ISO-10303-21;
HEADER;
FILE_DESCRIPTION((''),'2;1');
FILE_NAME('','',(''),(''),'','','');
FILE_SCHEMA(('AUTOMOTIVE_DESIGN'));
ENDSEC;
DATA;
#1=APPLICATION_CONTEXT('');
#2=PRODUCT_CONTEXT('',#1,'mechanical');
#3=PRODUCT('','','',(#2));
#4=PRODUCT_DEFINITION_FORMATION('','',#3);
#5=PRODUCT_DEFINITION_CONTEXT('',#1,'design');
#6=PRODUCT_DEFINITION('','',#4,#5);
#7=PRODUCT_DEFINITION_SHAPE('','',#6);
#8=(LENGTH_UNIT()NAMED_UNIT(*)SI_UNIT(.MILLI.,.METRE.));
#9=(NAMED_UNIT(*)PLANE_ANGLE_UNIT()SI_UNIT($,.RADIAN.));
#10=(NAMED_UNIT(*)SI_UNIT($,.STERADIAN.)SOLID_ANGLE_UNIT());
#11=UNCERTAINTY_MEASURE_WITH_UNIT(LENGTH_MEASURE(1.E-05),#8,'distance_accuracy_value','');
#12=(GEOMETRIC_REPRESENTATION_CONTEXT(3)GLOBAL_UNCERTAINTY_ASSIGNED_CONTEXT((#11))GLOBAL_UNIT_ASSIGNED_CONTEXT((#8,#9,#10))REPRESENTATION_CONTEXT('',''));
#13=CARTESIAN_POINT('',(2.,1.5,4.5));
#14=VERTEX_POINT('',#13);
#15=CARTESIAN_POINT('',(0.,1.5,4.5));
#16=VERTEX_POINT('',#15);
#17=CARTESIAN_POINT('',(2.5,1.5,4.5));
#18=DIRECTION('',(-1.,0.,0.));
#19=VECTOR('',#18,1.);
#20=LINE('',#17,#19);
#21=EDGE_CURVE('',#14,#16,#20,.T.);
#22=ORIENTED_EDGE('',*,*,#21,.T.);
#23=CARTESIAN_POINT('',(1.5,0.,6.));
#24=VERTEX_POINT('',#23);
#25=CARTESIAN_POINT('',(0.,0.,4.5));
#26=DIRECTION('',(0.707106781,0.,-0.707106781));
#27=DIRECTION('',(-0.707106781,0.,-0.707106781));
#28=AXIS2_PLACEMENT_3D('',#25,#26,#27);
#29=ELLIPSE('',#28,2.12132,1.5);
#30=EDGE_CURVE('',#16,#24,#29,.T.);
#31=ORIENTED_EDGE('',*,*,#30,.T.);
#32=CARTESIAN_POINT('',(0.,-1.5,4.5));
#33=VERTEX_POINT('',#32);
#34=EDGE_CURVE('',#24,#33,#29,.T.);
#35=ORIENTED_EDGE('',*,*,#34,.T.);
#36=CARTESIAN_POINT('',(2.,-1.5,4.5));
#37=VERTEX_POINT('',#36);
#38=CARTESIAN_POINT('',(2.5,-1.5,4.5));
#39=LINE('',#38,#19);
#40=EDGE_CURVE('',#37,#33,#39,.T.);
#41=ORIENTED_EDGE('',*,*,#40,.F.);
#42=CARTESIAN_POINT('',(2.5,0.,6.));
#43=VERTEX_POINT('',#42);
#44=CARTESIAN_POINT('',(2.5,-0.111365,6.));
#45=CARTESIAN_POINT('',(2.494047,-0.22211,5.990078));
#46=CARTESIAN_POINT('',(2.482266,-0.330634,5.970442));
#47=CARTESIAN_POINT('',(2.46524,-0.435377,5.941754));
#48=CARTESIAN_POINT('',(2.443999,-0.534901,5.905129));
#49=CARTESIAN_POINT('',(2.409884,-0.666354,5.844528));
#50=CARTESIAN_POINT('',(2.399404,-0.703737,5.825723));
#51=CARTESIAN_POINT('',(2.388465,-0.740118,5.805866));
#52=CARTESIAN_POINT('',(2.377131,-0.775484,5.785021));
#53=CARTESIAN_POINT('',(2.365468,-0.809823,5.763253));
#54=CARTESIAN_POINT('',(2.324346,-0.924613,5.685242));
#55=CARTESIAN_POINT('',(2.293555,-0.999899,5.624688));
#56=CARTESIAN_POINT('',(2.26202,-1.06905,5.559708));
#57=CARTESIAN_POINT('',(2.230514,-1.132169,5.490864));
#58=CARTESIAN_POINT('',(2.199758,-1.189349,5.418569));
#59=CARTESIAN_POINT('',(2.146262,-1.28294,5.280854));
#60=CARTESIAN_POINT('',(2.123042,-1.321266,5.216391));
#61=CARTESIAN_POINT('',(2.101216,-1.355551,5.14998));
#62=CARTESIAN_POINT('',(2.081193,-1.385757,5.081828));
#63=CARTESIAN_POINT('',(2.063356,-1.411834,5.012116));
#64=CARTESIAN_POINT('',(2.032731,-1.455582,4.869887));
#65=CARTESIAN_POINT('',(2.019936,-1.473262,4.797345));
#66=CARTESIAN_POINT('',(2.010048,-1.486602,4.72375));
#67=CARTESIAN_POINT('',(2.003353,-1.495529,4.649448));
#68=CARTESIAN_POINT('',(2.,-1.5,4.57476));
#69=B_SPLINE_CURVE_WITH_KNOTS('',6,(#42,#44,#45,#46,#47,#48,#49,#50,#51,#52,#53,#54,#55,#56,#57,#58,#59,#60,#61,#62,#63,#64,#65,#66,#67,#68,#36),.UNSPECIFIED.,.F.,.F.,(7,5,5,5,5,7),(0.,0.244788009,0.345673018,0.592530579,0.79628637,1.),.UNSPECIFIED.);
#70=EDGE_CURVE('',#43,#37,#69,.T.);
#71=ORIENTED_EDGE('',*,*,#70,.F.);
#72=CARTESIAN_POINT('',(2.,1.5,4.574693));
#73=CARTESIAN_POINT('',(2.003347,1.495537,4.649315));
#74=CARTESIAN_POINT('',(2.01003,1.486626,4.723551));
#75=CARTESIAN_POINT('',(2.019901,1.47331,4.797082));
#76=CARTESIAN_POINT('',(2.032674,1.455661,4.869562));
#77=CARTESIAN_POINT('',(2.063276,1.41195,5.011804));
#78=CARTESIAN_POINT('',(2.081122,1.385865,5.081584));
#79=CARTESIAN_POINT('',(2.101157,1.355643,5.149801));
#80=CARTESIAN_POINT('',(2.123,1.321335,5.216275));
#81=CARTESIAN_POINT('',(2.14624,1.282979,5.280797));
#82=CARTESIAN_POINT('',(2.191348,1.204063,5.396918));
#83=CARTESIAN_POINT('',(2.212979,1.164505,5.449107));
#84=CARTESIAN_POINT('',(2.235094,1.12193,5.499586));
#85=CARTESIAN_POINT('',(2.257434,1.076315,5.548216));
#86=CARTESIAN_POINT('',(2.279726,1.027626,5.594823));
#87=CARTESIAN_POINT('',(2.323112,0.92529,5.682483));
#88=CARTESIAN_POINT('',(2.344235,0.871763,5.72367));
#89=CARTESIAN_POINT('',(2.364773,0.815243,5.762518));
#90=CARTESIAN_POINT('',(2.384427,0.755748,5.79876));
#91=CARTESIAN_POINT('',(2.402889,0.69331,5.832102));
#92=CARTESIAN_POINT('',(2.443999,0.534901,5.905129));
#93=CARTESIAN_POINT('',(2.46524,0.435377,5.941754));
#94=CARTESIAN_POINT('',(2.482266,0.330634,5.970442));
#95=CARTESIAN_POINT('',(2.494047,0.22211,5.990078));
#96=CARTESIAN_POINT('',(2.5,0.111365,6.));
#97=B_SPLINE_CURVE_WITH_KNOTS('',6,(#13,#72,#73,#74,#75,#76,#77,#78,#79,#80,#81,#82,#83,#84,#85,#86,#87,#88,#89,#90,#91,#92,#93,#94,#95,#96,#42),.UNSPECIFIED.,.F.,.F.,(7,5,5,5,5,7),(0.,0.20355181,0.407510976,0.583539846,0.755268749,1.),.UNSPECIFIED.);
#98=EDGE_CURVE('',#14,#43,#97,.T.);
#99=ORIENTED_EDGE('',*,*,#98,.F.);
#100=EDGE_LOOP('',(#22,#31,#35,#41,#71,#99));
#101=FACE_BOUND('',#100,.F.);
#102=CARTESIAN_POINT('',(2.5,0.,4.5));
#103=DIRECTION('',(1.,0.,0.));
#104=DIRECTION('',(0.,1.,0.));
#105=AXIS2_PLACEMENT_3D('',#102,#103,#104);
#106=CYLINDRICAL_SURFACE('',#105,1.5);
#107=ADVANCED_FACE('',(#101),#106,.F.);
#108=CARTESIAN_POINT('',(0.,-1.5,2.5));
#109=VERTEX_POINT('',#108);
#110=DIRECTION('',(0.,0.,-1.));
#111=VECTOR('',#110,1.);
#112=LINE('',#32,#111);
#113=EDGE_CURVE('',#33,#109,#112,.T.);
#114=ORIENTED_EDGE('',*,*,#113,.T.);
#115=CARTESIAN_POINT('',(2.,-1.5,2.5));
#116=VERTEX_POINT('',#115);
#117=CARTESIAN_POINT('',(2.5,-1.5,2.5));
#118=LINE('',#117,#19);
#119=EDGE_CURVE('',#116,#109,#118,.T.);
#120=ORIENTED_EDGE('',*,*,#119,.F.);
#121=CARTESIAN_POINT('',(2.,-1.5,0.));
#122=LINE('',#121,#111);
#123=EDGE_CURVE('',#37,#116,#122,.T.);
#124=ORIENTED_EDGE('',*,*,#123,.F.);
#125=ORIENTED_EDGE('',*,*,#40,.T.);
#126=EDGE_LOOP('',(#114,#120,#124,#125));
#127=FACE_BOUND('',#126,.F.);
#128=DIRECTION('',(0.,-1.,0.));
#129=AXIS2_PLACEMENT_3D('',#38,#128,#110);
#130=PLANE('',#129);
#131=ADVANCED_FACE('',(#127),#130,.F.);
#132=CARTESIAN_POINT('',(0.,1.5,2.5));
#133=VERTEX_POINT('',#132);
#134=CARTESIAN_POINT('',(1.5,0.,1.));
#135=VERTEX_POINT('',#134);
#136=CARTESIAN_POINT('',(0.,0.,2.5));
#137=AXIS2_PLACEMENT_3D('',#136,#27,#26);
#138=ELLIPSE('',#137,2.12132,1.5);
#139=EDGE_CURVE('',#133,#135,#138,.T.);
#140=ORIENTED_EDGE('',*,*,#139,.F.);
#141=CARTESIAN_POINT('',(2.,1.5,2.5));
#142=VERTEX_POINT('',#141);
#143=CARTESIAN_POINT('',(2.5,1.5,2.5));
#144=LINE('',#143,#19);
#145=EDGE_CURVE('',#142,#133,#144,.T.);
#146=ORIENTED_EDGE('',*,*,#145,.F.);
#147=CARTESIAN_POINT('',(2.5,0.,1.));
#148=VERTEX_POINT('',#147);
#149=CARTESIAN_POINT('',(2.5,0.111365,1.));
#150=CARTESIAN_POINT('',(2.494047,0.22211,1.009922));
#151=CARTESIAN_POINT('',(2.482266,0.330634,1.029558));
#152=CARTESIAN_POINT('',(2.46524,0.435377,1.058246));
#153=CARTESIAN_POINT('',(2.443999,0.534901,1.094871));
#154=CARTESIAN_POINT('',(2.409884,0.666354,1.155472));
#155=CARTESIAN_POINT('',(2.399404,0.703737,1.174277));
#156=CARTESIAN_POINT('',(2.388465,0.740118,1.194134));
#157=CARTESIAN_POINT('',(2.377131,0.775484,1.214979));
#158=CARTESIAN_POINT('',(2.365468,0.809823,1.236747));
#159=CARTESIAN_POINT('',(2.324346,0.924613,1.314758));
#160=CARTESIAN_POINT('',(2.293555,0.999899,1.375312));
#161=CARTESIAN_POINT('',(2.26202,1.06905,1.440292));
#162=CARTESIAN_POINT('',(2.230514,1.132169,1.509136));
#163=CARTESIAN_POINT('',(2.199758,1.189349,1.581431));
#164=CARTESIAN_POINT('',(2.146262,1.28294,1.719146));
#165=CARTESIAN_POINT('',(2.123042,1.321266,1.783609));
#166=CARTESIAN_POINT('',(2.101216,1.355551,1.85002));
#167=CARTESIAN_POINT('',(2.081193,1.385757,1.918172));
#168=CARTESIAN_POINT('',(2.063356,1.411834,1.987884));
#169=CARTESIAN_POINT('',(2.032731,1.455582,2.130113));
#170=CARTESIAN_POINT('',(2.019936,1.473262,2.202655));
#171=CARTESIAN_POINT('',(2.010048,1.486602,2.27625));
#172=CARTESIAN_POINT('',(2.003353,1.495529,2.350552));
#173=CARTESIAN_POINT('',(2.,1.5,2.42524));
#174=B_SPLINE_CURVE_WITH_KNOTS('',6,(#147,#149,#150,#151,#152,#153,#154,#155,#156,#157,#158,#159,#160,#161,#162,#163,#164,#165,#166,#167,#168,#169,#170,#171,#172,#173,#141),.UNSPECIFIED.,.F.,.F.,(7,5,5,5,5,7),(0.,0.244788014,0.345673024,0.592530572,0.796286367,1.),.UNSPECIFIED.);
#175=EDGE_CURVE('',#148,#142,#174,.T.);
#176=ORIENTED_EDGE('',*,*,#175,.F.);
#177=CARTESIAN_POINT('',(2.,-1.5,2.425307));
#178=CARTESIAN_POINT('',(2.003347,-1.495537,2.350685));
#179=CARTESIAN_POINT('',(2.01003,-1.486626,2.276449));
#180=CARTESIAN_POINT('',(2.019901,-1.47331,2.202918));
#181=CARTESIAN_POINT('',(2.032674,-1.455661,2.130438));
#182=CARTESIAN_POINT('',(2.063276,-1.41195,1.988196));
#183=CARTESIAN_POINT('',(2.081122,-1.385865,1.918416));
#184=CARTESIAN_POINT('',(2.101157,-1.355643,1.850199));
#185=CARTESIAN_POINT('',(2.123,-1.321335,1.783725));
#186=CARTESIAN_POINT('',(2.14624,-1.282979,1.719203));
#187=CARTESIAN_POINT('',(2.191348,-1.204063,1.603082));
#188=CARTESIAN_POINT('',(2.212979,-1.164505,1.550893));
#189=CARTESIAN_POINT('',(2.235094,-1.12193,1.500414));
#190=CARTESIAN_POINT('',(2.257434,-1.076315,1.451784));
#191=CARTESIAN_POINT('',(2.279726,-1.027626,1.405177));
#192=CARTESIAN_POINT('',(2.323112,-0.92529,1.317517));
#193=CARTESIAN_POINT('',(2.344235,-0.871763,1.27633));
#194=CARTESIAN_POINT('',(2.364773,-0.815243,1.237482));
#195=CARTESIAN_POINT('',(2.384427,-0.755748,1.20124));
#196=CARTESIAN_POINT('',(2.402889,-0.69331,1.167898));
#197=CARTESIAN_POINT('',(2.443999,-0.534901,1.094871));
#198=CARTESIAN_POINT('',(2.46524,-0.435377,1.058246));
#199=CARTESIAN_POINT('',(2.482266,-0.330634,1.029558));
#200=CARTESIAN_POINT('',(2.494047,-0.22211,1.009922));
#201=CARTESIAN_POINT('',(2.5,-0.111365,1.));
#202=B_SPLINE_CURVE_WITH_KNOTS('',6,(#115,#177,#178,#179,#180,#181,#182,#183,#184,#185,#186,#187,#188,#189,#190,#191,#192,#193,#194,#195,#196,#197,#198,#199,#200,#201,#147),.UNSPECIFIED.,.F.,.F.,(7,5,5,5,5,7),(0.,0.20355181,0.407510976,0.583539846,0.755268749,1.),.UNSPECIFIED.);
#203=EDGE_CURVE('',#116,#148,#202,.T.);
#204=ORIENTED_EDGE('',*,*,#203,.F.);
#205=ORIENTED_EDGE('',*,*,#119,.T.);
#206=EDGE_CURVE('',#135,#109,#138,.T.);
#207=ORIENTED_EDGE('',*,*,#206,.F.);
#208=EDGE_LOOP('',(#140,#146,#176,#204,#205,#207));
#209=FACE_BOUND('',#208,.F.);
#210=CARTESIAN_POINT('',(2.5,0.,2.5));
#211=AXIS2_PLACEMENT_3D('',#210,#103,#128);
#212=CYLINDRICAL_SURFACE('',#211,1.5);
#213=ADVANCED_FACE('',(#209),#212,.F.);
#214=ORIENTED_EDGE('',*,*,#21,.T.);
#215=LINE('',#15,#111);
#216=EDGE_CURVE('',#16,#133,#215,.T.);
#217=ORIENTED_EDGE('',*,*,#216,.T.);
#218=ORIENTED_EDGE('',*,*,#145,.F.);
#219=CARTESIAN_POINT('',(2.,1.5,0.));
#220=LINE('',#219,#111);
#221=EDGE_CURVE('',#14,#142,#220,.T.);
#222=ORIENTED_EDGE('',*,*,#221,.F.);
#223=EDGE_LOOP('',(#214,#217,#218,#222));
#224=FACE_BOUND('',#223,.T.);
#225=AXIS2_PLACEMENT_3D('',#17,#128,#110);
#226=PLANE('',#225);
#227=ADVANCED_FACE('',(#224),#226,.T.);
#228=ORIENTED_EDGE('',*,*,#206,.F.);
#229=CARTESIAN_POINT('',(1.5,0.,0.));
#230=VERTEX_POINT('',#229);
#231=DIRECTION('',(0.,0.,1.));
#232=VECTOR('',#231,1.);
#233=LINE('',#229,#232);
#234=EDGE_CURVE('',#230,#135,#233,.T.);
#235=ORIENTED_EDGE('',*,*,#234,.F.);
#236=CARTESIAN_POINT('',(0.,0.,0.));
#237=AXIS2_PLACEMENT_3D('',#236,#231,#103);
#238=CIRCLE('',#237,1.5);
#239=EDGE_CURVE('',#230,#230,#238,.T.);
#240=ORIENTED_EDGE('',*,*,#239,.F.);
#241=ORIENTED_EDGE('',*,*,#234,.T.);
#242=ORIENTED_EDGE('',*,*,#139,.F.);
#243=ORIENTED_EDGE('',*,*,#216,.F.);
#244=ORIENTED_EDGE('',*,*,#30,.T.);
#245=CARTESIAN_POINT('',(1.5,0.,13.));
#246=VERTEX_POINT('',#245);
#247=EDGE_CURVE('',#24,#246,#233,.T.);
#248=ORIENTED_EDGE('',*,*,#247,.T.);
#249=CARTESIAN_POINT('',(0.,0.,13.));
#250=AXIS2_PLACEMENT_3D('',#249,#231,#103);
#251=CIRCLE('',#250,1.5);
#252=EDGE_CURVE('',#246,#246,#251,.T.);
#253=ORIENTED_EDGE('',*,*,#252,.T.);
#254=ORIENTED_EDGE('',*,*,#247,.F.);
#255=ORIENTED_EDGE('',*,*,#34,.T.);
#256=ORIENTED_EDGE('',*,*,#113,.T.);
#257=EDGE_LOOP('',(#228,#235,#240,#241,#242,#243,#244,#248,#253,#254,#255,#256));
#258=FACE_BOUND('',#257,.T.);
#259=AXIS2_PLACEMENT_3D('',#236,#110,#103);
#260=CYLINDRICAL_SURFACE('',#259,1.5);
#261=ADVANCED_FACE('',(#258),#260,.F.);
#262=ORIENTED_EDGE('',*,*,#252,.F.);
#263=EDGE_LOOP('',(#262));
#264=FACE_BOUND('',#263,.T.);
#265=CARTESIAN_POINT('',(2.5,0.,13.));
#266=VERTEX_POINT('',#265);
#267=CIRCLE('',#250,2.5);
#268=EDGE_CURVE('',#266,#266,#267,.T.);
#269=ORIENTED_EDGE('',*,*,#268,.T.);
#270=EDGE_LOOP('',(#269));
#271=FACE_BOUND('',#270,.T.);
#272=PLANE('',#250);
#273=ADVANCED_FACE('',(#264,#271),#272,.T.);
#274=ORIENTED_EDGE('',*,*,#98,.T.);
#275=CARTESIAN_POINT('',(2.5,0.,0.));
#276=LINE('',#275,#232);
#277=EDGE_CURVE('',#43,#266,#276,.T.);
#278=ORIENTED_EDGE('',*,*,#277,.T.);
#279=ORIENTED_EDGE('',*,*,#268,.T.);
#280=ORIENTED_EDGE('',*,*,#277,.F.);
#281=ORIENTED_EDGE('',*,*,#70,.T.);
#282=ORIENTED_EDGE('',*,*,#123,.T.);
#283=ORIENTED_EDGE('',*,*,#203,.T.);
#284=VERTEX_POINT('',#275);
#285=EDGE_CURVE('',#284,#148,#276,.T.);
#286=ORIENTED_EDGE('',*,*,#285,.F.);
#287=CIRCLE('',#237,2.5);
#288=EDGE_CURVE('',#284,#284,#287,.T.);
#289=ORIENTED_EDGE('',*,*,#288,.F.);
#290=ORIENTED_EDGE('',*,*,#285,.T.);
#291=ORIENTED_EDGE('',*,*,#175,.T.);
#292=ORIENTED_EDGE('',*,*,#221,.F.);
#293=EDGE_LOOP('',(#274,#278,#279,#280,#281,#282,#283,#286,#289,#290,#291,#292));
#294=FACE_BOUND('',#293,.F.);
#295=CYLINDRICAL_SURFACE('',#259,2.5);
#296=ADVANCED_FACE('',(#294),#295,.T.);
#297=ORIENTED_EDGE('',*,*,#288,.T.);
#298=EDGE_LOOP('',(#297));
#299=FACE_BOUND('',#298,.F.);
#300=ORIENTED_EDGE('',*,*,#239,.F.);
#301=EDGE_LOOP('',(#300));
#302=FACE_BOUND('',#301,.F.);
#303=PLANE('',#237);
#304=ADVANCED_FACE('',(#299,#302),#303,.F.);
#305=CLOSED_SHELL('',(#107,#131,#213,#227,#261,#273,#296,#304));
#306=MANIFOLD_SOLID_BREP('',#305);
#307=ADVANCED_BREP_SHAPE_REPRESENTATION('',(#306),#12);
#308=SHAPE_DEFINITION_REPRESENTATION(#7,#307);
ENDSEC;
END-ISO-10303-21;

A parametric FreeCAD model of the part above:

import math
import FreeCAD as App
import Part
import Sketcher

V = App.Vector

doc = App.newDocument("Part")
params = doc.addObject("Spreadsheet::Sheet", "Params")
for row, (alias, value) in enumerate([
    ("sketch1_diameter", "5 mm"),
    ("sketch1_diameter2", "3 mm"),
    ("pad1_length", "13 mm"),
    ("sketch2_radius", "1.5 mm"),
    ("sketch2_height", "2 mm"),
    ("pocket1_length", "2.5 mm"),
], start=1):
    params.set(f"A{row}", alias)
    params.set(f"B{row}", "=" + value)
    params.setAlias(f"B{row}", alias)

body = doc.addObject("PartDesign::Body", "Body")

sketch1 = body.newObject("Sketcher::SketchObject", "Sketch")
sketch1.AttachmentSupport = (doc.getObject("XY_Plane"), [""])
sketch1.MapMode = "FlatFace"
sketch1.addGeometry([
    Part.Circle(V(0, 0, 0), V(0, 0, 1), 2.5),
    Part.Circle(V(0, 0, 0), V(0, 0, 1), 1.5),
], False)
sketch1.addConstraint([
    Sketcher.Constraint("Coincident", 0, 3, -1, 1),
    Sketcher.Constraint("Coincident", 1, 3, -1, 1),
    Sketcher.Constraint("Diameter", 0, 5.0),
    Sketcher.Constraint("Diameter", 1, 3.0),
])
sketch1.setExpression("Constraints[2]", "Params.sketch1_diameter")
sketch1.setExpression("Constraints[3]", "Params.sketch1_diameter2")
pad1 = body.newObject("PartDesign::Pad", "Pad")
pad1.Profile = sketch1
pad1.setExpression("Length", "Params.pad1_length")

sketch2 = body.newObject("Sketcher::SketchObject", "Sketch001")
sketch2.AttachmentSupport = (doc.getObject("YZ_Plane"), [""])
sketch2.MapMode = "FlatFace"
sketch2.AttachmentOffset = App.Placement(V(0, 0, 2.5), App.Rotation())
sketch2.addGeometry([
    Part.ArcOfCircle(Part.Circle(V(0, 4.5, 0), V(0, 0, 1), 1.5), math.radians(0), math.radians(180)),
    Part.LineSegment(V(-1.5, 4.5, 0), V(-1.5, 2.5, 0)),
    Part.ArcOfCircle(Part.Circle(V(0, 2.5, 0), V(0, 0, 1), 1.5), math.radians(180), math.radians(360)),
    Part.LineSegment(V(1.5, 2.5, 0), V(1.5, 4.5, 0)),
], False)
sketch2.addConstraint([
    Sketcher.Constraint("Tangent", 0, 2, 1, 1),
    Sketcher.Constraint("Tangent", 1, 2, 2, 1),
    Sketcher.Constraint("Tangent", 2, 2, 3, 1),
    Sketcher.Constraint("Tangent", 3, 2, 0, 1),
    Sketcher.Constraint("Vertical", 1),
    Sketcher.Constraint("Vertical", 3),
    Sketcher.Constraint("PointOnObject", 0, 3, -2),
    Sketcher.Constraint("Radius", 0, 1.5),
    Sketcher.Constraint("DistanceY", 1, 2, 1, 1, 2.0),
    Sketcher.Constraint("DistanceY", -1, 1, 0, 3, 4.5),
])
sketch2.setExpression("Constraints[7]", "Params.sketch2_radius")
sketch2.setExpression("Constraints[8]", "Params.sketch2_height")
pocket1 = body.newObject("PartDesign::Pocket", "Pocket")
pocket1.Profile = sketch2
pocket1.setExpression("Length", "Params.pocket1_length")

doc.recompute()
